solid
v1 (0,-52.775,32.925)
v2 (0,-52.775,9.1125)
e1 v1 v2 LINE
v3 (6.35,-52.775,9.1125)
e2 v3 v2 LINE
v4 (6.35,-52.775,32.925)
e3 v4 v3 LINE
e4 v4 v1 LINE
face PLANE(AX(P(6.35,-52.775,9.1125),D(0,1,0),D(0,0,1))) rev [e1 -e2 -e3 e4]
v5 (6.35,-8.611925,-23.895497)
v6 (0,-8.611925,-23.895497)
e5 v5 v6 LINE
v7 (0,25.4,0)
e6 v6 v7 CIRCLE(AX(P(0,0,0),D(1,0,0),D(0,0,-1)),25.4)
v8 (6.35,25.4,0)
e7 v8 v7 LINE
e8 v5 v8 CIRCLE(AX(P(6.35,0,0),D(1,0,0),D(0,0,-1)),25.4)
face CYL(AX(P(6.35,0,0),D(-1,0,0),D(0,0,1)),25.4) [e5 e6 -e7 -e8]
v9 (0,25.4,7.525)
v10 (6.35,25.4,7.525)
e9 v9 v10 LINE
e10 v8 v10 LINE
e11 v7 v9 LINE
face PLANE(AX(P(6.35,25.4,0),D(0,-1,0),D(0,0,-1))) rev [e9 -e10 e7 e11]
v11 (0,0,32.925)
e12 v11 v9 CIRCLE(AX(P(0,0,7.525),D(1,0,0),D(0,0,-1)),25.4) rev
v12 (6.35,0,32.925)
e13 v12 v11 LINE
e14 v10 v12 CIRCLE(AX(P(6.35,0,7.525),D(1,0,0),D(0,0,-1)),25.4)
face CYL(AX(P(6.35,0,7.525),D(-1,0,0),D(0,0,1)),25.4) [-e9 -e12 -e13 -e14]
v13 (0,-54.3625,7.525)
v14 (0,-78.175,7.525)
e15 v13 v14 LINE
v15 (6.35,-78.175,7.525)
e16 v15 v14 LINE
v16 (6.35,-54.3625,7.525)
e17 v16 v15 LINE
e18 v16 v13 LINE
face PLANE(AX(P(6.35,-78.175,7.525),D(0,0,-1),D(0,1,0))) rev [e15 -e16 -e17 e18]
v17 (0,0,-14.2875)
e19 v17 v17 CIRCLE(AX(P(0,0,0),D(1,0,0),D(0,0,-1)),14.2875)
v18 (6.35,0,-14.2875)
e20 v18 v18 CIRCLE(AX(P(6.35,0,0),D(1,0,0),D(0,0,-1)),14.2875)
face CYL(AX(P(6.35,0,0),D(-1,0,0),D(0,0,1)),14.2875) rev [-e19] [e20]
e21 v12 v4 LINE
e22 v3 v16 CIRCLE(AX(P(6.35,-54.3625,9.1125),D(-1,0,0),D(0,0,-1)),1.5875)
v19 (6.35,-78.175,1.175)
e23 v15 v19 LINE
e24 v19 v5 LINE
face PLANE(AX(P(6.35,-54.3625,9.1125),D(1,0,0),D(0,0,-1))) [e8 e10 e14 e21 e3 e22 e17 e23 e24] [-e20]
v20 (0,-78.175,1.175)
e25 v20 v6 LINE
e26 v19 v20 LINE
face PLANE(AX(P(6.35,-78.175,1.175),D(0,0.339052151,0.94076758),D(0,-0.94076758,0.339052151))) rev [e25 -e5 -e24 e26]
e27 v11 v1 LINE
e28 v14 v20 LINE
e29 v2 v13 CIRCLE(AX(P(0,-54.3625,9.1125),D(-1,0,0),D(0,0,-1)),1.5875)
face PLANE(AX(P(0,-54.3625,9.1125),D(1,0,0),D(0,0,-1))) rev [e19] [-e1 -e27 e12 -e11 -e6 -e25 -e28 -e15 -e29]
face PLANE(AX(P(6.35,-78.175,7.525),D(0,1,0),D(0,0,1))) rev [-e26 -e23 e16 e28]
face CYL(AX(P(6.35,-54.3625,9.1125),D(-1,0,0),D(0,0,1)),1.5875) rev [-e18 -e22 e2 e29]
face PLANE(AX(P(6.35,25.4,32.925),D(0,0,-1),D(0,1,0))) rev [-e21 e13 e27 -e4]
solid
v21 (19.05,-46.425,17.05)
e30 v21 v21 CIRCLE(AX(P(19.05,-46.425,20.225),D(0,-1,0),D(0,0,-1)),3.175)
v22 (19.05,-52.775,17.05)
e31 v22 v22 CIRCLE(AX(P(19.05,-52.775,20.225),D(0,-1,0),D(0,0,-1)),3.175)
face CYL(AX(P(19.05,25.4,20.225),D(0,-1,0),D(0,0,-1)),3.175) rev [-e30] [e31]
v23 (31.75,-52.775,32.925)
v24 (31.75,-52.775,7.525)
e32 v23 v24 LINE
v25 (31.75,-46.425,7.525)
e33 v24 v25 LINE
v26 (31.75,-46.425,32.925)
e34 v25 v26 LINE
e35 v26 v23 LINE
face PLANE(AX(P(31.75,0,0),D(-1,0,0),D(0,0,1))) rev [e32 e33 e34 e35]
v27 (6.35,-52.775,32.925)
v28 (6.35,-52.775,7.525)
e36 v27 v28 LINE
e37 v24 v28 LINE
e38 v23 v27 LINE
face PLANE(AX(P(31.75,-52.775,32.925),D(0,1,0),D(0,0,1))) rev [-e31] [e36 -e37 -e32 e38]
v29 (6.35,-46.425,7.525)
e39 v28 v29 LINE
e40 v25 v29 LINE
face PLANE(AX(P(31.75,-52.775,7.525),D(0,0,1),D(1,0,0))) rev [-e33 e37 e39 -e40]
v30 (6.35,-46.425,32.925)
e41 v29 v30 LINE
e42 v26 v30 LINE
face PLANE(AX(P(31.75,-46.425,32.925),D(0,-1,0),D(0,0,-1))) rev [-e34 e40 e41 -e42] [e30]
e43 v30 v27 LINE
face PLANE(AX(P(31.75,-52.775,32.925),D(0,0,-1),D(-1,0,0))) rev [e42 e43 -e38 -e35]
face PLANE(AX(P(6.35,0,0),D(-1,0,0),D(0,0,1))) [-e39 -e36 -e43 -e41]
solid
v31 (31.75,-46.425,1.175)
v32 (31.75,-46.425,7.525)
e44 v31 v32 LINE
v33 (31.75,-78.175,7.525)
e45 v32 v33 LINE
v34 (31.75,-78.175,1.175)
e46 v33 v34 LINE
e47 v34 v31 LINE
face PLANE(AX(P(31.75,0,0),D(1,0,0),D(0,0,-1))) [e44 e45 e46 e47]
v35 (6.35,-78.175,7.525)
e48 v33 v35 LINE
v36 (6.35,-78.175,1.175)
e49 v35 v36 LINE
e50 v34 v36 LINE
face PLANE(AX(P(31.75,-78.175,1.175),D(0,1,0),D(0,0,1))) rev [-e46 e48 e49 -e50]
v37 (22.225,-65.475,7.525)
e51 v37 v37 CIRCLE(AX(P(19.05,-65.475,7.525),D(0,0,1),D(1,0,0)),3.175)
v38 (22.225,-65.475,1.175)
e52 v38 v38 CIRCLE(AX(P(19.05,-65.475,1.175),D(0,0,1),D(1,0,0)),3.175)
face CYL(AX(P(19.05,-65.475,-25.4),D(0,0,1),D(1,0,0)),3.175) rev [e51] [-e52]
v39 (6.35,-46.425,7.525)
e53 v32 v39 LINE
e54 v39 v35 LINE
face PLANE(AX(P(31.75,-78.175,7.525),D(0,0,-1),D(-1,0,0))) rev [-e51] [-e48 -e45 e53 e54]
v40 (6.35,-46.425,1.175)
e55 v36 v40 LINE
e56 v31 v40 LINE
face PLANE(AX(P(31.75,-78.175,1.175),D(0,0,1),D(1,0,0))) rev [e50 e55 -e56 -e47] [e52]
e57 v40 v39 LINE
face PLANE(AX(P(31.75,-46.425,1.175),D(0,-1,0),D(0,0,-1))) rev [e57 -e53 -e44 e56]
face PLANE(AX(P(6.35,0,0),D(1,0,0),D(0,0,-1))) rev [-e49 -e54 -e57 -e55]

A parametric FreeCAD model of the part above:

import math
import FreeCAD as App
import Part
import Sketcher
Q = App.Units.Quantity


def edges_at(feature, points):
    """Names of the edges that pass closest to the given points."""
    edges = feature.Shape.Edges
    near = lambda p: min(range(len(edges)), key=lambda i: edges[i].distToShape(Part.Vertex(*p))[0])
    return sorted({f"Edge{near(p) + 1}" for p in points})


def add_polygon(sketch, points):
    """Adds a closed chain of lines whose ends are joined by coincident constraints."""
    first, n = sketch.GeometryCount, len(points)
    for a, b in zip(points, points[1:] + points[:1]):
        sketch.addGeometry(Part.LineSegment(App.Vector(*a, 0), App.Vector(*b, 0)), False)
    for i in range(n):
        sketch.addConstraint(Sketcher.Constraint("Coincident", first + i, 2, first + (i + 1) % n, 1))

doc = App.newDocument("Part")
body = doc.addObject("PartDesign::Body", "Body")

# Sketch on YZ plane
sketch1 = doc.addObject("Sketcher::SketchObject", "Sketch")
body.addObject(sketch1)
sketch1.AttachmentSupport = (doc.YZ_Plane, [""])
sketch1.MapMode = "FlatFace"
sketch1.addGeometry(Part.LineSegment(App.Vector(25.4, 0, 0), App.Vector(25.4, 32.9, 0)), False)
sketch1.addGeometry(Part.LineSegment(App.Vector(25.4, 32.9, 0), App.Vector(-52.8, 32.9, 0)), False)
sketch1.addGeometry(Part.LineSegment(App.Vector(-52.8, 32.9, 0), App.Vector(-52.8, 9.1, 0)), False)
sketch1.addGeometry(Part.ArcOfCircle(Part.Circle(App.Vector(-54.4, 9.1, 0), App.Vector(0, 0, 1), 1.6), math.radians(-90), math.radians(0)), False)
sketch1.addGeometry(Part.LineSegment(App.Vector(-54.4, 7.5, 0), App.Vector(-78.2, 7.5, 0)), False)
sketch1.addGeometry(Part.LineSegment(App.Vector(-78.2, 7.5, 0), App.Vector(-78.2, 1.2, 0)), False)
sketch1.addGeometry(Part.LineSegment(App.Vector(-78.2, 1.2, 0), App.Vector(-8.6, -23.9, 0)), False)
sketch1.addGeometry(Part.ArcOfCircle(Part.Circle(App.Vector(0, 0, 0), App.Vector(0, 0, 1), 25.4), math.radians(-110), math.radians(0)), False)
sketch1.addGeometry(Part.Circle(App.Vector(0, 0, 0), App.Vector(0, 0, 1), 14.3), False)
sketch1.addConstraint(Sketcher.Constraint("Coincident", 0, 2, 1, 1))
sketch1.addConstraint(Sketcher.Constraint("Coincident", 1, 2, 2, 1))
sketch1.addConstraint(Sketcher.Constraint("Tangent", 2, 2, 3, 2))
sketch1.addConstraint(Sketcher.Constraint("Tangent", 3, 1, 4, 1))
sketch1.addConstraint(Sketcher.Constraint("Coincident", 4, 2, 5, 1))
sketch1.addConstraint(Sketcher.Constraint("Coincident", 5, 2, 6, 1))
sketch1.addConstraint(Sketcher.Constraint("Tangent", 6, 2, 7, 1))
sketch1.addConstraint(Sketcher.Constraint("Tangent", 7, 2, 0, 1))
sketch1.addConstraint(Sketcher.Constraint("Vertical", 0))
sketch1.addConstraint(Sketcher.Constraint("Horizontal", 1))
sketch1.addConstraint(Sketcher.Constraint("Vertical", 2))
sketch1.addConstraint(Sketcher.Constraint("Horizontal", 4))
sketch1.addConstraint(Sketcher.Constraint("Vertical", 5))
sketch1.addConstraint(Sketcher.Constraint("Coincident", 7, 3, -1, 1))
sketch1.addConstraint(Sketcher.Constraint("Coincident", 8, 3, -1, 1))
sketch1.addConstraint(Sketcher.Constraint("Equal", 4, 2))
sketch1.addConstraint(Sketcher.Constraint("Radius", 7, Q("1 in")))
sketch1.addConstraint(Sketcher.Constraint("Diameter", 8, Q("1.125 in")))
sketch1.addConstraint(Sketcher.Constraint("Radius", 3, Q("0.0625 in")))
sketch1.addConstraint(Sketcher.Constraint("DistanceY", 3, 1, 1, 2, Q("1 in")))
sketch1.addConstraint(Sketcher.Constraint("DistanceY", 5, 2, 5, 1, Q("0.25 in")))
sketch1.addConstraint(Sketcher.Constraint("DistanceX", 1, 2, 1, 1, 78.175))
sketch1.addConstraint(Sketcher.Constraint("DistanceY", 0, 1, 0, 2, 32.925))
pad1 = doc.addObject("PartDesign::Pad", "Pad")
body.addObject(pad1)
pad1.Profile = sketch1
pad1.Length = Q("0.25 in")
doc.recompute()

fillet = doc.addObject("PartDesign::Fillet", "Fillet")
body.addObject(fillet)
fillet.Base = (pad1, edges_at(pad1, [(3.175, 25.4, 32.925)]))
fillet.Radius = Q("1 in")
body2 = doc.addObject("PartDesign::Body", "Body001")

# Sketch on YZ plane
sketch2 = doc.addObject("Sketcher::SketchObject", "Sketch001")
body2.addObject(sketch2)
sketch2.AttachmentSupport = (doc.getObject("YZ_Plane001"), [""])
sketch2.MapMode = "FlatFace"
sketch2.AttachmentOffset = App.Placement(App.Vector(0, 0, 0.25 * 25.4), App.Rotation())
add_polygon(sketch2, [(-46, 33), (-53, 33), (-53, 8), (-46, 8)])  # lines 0-3
sketch2.addConstraint(Sketcher.Constraint("Horizontal", 0))
sketch2.addConstraint(Sketcher.Constraint("Vertical", 1))
sketch2.addConstraint(Sketcher.Constraint("Horizontal", 2))
sketch2.addConstraint(Sketcher.Constraint("Vertical", 3))
sketch2.addConstraint(Sketcher.Constraint("DistanceY", 1, 2, 1, 1, Q("1 in")))
sketch2.addConstraint(Sketcher.Constraint("DistanceX", 0, 2, 0, 1, Q("0.25 in")))
sketch2.addConstraint(Sketcher.Constraint("DistanceX", 0, 2, -1, 1, 52.775))
sketch2.addConstraint(Sketcher.Constraint("DistanceY", -1, 1, 0, 2, 32.925))
pad2 = doc.addObject("PartDesign::Pad", "Pad001")
body2.addObject(pad2)
pad2.Profile = sketch2
pad2.Length = Q("1 in")

# Sketch on XZ plane
sketch3 = doc.addObject("Sketcher::SketchObject", "Sketch002")
body2.addObject(sketch3)
sketch3.AttachmentSupport = (doc.getObject("XZ_Plane001"), [""])
sketch3.MapMode = "FlatFace"
sketch3.AttachmentOffset = App.Placement(App.Vector(0, 0, 52.775), App.Rotation())
sketch3.addGeometry(Part.Circle(App.Vector(19.1, 20.2, 0), App.Vector(0, 0, 1), 3.2), False)
sketch3.addConstraint(Sketcher.Constraint("Diameter", 0, Q("0.25 in")))
sketch3.addConstraint(Sketcher.Constraint("DistanceX", -1, 1, 0, 3, Q("0.75 in")))
sketch3.addConstraint(Sketcher.Constraint("DistanceY", -1, 1, 0, 3, 20.225))
pocket1 = doc.addObject("PartDesign::Pocket", "Pocket")
body2.addObject(pocket1)
pocket1.Profile = sketch3
pocket1.Type = "ThroughAll"
body3 = doc.addObject("PartDesign::Body", "Body002")

# Sketch on YZ plane
sketch4 = doc.addObject("Sketcher::SketchObject", "Sketch003")
body3.addObject(sketch4)
sketch4.AttachmentSupport = (doc.getObject("YZ_Plane002"), [""])
sketch4.MapMode = "FlatFace"
sketch4.AttachmentOffset = App.Placement(App.Vector(0, 0, 0.25 * 25.4), App.Rotation())
add_polygon(sketch4, [(-46, 8), (-78, 8), (-78, 1), (-46, 1)])  # lines 0-3
sketch4.addConstraint(Sketcher.Constraint("Horizontal", 0))
sketch4.addConstraint(Sketcher.Constraint("Vertical", 1))
sketch4.addConstraint(Sketcher.Constraint("Horizontal", 2))
sketch4.addConstraint(Sketcher.Constraint("Vertical", 3))
sketch4.addConstraint(Sketcher.Constraint("DistanceX", 0, 2, 0, 1, Q("1.25 in")))
sketch4.addConstraint(Sketcher.Constraint("DistanceY", 1, 2, 1, 1, Q("0.25 in")))
sketch4.addConstraint(Sketcher.Constraint("DistanceX", 0, 2, -1, 1, 78.175))
sketch4.addConstraint(Sketcher.Constraint("DistanceY", -1, 1, 0, 2, 7.525))
pad3 = doc.addObject("PartDesign::Pad", "Pad002")
body3.addObject(pad3)
pad3.Profile = sketch4
pad3.Length = Q("1 in")

# Sketch on XY plane
sketch5 = doc.addObject("Sketcher::SketchObject", "Sketch004")
body3.addObject(sketch5)
sketch5.AttachmentSupport = (doc.getObject("XY_Plane002"), [""])
sketch5.MapMode = "FlatFace"
sketch5.AttachmentOffset = App.Placement(App.Vector(0, 0, 7.525), App.Rotation())
sketch5.addGeometry(Part.Circle(App.Vector(19.1, -65.5, 0), App.Vector(0, 0, 1), 3.2), False)
sketch5.addConstraint(Sketcher.Constraint("Diameter", 0, Q("0.25 in")))
sketch5.addConstraint(Sketcher.Constraint("DistanceX", -1, 1, 0, 3, Q("0.75 in")))
sketch5.addConstraint(Sketcher.Constraint("DistanceY", 0, 3, -1, 1, 65.475))
pocket2 = doc.addObject("PartDesign::Pocket", "Pocket001")
body3.addObject(pocket2)
pocket2.Profile = sketch5
pocket2.Type = "ThroughAll"

doc.recompute()
